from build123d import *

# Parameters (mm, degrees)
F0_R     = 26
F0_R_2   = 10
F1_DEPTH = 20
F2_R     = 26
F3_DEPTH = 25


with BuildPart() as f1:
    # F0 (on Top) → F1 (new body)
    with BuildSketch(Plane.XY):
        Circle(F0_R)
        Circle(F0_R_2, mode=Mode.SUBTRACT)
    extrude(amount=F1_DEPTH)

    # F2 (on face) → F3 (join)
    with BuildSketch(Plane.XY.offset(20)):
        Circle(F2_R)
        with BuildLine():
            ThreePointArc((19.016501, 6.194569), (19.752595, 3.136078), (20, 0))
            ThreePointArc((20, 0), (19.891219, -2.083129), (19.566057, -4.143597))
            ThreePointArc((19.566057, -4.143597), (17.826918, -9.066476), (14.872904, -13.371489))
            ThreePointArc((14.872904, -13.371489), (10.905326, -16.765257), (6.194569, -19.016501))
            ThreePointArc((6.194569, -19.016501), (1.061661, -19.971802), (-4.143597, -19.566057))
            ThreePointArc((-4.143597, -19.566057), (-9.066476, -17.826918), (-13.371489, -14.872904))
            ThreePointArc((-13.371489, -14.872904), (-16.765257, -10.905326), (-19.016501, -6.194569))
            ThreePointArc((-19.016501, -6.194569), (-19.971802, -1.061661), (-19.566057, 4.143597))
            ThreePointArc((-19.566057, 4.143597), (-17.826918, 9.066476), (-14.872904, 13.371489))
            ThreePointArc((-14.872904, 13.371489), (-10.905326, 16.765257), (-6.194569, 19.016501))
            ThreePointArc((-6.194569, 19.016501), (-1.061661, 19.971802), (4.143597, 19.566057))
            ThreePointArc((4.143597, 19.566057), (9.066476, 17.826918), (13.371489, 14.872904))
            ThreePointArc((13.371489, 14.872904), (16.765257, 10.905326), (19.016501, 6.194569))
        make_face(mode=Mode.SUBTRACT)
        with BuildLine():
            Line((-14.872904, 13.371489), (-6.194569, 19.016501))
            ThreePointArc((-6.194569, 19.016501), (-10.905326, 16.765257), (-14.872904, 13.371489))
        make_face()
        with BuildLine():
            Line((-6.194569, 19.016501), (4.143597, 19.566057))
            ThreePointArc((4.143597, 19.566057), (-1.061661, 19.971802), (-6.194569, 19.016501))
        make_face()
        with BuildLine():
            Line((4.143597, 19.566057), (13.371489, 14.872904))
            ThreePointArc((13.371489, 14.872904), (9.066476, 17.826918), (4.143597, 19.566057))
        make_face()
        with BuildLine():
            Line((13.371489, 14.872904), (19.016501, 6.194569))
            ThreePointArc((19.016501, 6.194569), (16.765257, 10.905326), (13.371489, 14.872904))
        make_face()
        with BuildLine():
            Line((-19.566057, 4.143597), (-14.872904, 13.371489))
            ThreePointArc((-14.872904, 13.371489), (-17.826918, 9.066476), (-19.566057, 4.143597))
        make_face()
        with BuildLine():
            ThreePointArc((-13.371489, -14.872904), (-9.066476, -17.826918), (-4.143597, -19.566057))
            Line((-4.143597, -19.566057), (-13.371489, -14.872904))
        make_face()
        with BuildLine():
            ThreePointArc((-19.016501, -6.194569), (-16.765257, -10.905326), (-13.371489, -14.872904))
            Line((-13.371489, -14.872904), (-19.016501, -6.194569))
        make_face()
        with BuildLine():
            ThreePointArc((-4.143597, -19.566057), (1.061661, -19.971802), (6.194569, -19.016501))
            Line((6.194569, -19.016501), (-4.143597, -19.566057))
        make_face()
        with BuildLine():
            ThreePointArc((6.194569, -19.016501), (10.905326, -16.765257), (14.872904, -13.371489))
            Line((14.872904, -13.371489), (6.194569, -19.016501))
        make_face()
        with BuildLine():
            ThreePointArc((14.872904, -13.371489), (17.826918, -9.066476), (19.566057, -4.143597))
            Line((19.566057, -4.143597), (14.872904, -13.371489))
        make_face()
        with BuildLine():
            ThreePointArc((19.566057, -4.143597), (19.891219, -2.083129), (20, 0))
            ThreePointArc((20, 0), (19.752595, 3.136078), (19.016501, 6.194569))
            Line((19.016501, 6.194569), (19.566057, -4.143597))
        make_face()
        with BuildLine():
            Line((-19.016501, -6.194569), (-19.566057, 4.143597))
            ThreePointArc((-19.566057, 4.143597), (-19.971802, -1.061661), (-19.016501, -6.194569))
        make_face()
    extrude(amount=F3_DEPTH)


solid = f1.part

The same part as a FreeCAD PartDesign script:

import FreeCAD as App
import Part
import Sketcher
from FreeCAD import Vector


def add_polygon(sketch, points):
    """Adds a closed chain of lines whose ends are joined by coincident constraints."""
    first, n = sketch.GeometryCount, len(points)
    for a, b in zip(points, points[1:] + points[:1]):
        sketch.addGeometry(Part.LineSegment(App.Vector(*a, 0), App.Vector(*b, 0)), False)
    for i in range(n):
        sketch.addConstraint(Sketcher.Constraint("Coincident", first + i, 2, first + (i + 1) % n, 1))

doc = App.newDocument("Part")
body = doc.addObject("PartDesign::Body", "Body")

sketch1 = body.newObject("Sketcher::SketchObject", "Sketch")
sketch1.AttachmentSupport = (doc.getObject("XY_Plane"), [""])
sketch1.MapMode = "FlatFace"
sketch1.addGeometry([
    Part.Circle(Vector(0, 0, 0), Vector(0, 0, 1), 26),
    Part.Circle(Vector(0, 0, 0), Vector(0, 0, 1), 10),
], False)
sketch1.addConstraint([
    Sketcher.Constraint("Coincident", 0, 3, -1, 1),
    Sketcher.Constraint("Coincident", 1, 3, -1, 1),
    Sketcher.Constraint("Diameter", 0, 52.0),
    Sketcher.Constraint("Diameter", 1, 20.0),
])
pad1 = body.newObject("PartDesign::Pad", "Pad")
pad1.Profile = sketch1
pad1.Length = 20

sketch2 = body.newObject("Sketcher::SketchObject", "Sketch001")
sketch2.AttachmentSupport = (doc.getObject("XY_Plane"), [""])
sketch2.MapMode = "FlatFace"
sketch2.AttachmentOffset = App.Placement(Vector(0, 0, 20), App.Rotation())
sketch2.addGeometry(Part.Circle(Vector(0, 0, 0), Vector(0, 0, 1), 26), False)
add_polygon(sketch2, [(19.566057, -4.143597), (14.872904, -13.371489), (6.194569, -19.016501), (-4.143597, -19.566057), (-13.371489, -14.872904), (-19.016501, -6.194569), (-19.566057, 4.143597), (-14.872904, 13.371489), (-6.194569, 19.016501), (4.143597, 19.566057), (13.371489, 14.872904), (19.016501, 6.194569)])
sketch2.addConstraint([
    Sketcher.Constraint("Coincident", 0, 3, -1, 1),
    Sketcher.Constraint("Symmetric", 1, 2, 7, 2, -1, 1),
    Sketcher.Constraint("Symmetric", 2, 2, 8, 2, -1, 1),
    Sketcher.Constraint("Symmetric", 3, 2, 9, 2, -1, 1),
    Sketcher.Constraint("Symmetric", 4, 2, 10, 2, -1, 1),
    Sketcher.Constraint("Symmetric", 5, 2, 11, 2, -1, 1),
    Sketcher.Constraint("Symmetric", 6, 2, 12, 2, -1, 1),
    Sketcher.Constraint("Perpendicular", 1, 4),
    Sketcher.Constraint("Perpendicular", 2, 5),
    Sketcher.Constraint("Perpendicular", 3, 6),
    Sketcher.Constraint("Equal", 1, 2),
    Sketcher.Constraint("Equal", 2, 3),
    Sketcher.Constraint("Equal", 3, 4),
    Sketcher.Constraint("Equal", 4, 5),
    Sketcher.Constraint("Equal", 5, 6),
    Sketcher.Constraint("Diameter", 0, 52.0),
    Sketcher.Constraint("DistanceY", 2, 2, -1, 1, 19.016501),
    Sketcher.Constraint("DistanceX", 3, 2, 1, 2, 19.016501),
    Sketcher.Constraint("DistanceY", 2, 2, 6, 2, 23.160098),
    Sketcher.Constraint("Distance", 1, 10.352762),
])
pad2 = body.newObject("PartDesign::Pad", "Pad001")
pad2.Profile = sketch2
pad2.Length = 25

doc.recompute()
